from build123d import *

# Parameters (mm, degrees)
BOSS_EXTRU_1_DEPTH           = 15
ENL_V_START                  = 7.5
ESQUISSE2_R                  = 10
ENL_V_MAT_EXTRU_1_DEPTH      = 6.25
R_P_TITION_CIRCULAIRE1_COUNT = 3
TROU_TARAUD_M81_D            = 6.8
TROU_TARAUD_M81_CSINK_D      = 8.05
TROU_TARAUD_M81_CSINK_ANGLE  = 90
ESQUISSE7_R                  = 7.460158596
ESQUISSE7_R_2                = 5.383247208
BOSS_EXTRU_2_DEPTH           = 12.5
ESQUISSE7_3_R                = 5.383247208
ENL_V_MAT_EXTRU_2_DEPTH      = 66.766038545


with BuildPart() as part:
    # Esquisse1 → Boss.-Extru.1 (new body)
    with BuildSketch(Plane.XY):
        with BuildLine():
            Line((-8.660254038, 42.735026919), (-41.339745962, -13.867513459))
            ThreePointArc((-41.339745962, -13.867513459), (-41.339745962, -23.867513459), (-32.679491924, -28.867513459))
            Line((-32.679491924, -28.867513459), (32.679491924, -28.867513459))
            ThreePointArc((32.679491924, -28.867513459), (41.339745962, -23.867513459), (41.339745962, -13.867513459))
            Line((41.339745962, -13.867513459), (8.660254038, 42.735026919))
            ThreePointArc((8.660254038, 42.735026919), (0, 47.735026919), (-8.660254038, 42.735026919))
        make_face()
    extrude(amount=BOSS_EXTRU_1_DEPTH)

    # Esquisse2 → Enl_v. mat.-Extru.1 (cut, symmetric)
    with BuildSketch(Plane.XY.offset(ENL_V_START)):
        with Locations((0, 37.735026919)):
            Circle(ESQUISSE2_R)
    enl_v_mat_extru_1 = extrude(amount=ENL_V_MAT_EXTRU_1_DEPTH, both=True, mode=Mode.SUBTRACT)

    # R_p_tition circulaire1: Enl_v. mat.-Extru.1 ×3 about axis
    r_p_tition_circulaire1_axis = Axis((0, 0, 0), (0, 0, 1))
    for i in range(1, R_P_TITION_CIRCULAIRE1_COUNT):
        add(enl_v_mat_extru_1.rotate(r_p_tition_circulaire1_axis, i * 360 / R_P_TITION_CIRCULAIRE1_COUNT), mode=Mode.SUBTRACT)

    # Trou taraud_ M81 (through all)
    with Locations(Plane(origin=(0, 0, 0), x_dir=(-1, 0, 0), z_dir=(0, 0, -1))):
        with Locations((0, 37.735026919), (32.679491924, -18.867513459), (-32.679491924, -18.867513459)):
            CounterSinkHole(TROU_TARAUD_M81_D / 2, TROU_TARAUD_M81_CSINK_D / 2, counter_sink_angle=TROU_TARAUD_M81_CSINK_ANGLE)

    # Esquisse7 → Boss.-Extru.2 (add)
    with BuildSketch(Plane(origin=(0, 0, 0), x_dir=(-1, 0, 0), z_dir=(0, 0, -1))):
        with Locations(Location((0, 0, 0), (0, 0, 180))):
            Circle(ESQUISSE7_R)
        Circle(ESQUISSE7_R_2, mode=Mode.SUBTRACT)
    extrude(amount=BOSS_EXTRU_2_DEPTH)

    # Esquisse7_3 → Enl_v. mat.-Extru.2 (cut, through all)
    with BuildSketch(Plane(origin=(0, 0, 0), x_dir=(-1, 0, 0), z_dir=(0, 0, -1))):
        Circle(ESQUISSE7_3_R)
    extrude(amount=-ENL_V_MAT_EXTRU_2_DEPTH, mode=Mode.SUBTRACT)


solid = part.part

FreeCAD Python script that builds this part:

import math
import FreeCAD as App
import Part
import Sketcher
from FreeCAD import Vector
Q = App.Units.Quantity

doc = App.newDocument("Part")
body = doc.addObject("PartDesign::Body", "Body")

# Sketch on XY plane
sketch1 = doc.addObject("Sketcher::SketchObject", "Sketch")
body.addObject(sketch1)
sketch1.AttachmentSupport = (doc.XY_Plane, [""])
sketch1.MapMode = "FlatFace"
sketch1.addGeometry([
    Part.LineSegment(Vector(-9, 43, 0), Vector(-41, -14, 0)),  # 0
    Part.ArcOfCircle(Part.Circle(Vector(-33, -19, 0), Vector(0, 0, 1), 10), math.radians(150), math.radians(270)),  # 1
    Part.LineSegment(Vector(-33, -29, 0), Vector(33, -29, 0)),  # 2
    Part.ArcOfCircle(Part.Circle(Vector(33, -19, 0), Vector(0, 0, 1), 10), math.radians(-90), math.radians(30)),  # 3
    Part.LineSegment(Vector(41, -14, 0), Vector(9, 43, 0)),  # 4
    Part.ArcOfCircle(Part.Circle(Vector(0, 38, 0), Vector(0, 0, 1), 10), math.radians(30), math.radians(150)),  # 5
], False)
sketch1.addConstraint([
    Sketcher.Constraint("Tangent", 0, 2, 1, 1),
    Sketcher.Constraint("Tangent", 1, 2, 2, 1),
    Sketcher.Constraint("Tangent", 2, 2, 3, 1),
    Sketcher.Constraint("Tangent", 3, 2, 4, 1),
    Sketcher.Constraint("Tangent", 4, 2, 5, 1),
    Sketcher.Constraint("Tangent", 5, 2, 0, 1),
    Sketcher.Constraint("Horizontal", 2),
    Sketcher.Constraint("Equal", 1, 3),
    Sketcher.Constraint("Equal", 3, 5),
    Sketcher.Constraint("Symmetric", 0, 2, 3, 2, -2),
    Sketcher.Constraint("Radius", 1, Q("10 mm")),
    Sketcher.Constraint("Angle", 0, Q("-120 deg")),
    Sketcher.Constraint("DistanceX", 2, 1, 2, 2, Q("65.358984 mm")),
    Sketcher.Constraint("DistanceY", 1, 3, -1, 1, Q("18.867513 mm")),
])
pad1 = doc.addObject("PartDesign::Pad", "Pad")
body.addObject(pad1)
pad1.Profile = sketch1
pad1.Length = 15

# Sketch on XY plane
sketch2 = doc.addObject("Sketcher::SketchObject", "Sketch001")
body.addObject(sketch2)
sketch2.AttachmentSupport = (doc.XY_Plane, [""])
sketch2.MapMode = "FlatFace"
sketch2.AttachmentOffset = App.Placement(Vector(0, 0, 7.5), App.Rotation())
sketch2.addGeometry(Part.Circle(Vector(0, 38, 0), Vector(0, 0, 1), 10), False)
sketch2.addConstraint([
    Sketcher.Constraint("PointOnObject", 0, 3, -2),
    Sketcher.Constraint("Diameter", 0, Q("20 mm")),
    Sketcher.Constraint("DistanceY", -1, 1, 0, 3, Q("37.735027 mm")),
])
pocket1 = doc.addObject("PartDesign::Pocket", "Pocket")
body.addObject(pocket1)
pocket1.Profile = sketch2
pocket1.Length = 12.5
pocket1.Midplane = True
doc.recompute()

polarpattern = doc.addObject("PartDesign::PolarPattern", "PolarPattern")
body.addObject(polarpattern)
polarpattern.Originals = [pocket1]
polarpattern.Axis = (doc.Z_Axis, [""])
polarpattern.Angle = 360
polarpattern.Occurrences = 3
body.Tip = polarpattern

# Sketch on XY plane
sketch3 = doc.addObject("Sketcher::SketchObject", "Sketch002")
body.addObject(sketch3)
sketch3.AttachmentSupport = (doc.XY_Plane, [""])
sketch3.MapMode = "FlatFace"
sketch3.addGeometry([
    Part.Circle(Vector(0, 37.7, 0), Vector(0, 0, 1), 3.4),
    Part.Circle(Vector(-32.7, -18.9, 0), Vector(0, 0, 1), 3.4),
    Part.Circle(Vector(32.7, -18.9, 0), Vector(0, 0, 1), 3.4),
], False)
sketch3.addConstraint([
    Sketcher.Constraint("Equal", 0, 1),
    Sketcher.Constraint("Equal", 1, 2),
    Sketcher.Constraint("Symmetric", 1, 3, 2, 3, -2),
    Sketcher.Constraint("PointOnObject", 0, 3, -2),
    Sketcher.Constraint("Diameter", 0, Q("6.8 mm")),
    Sketcher.Constraint("DistanceX", 1, 3, -1, 1, Q("32.679492 mm")),
    Sketcher.Constraint("DistanceY", 1, 3, 0, 3, Q("56.60254 mm")),
    Sketcher.Constraint("DistanceY", -1, 1, 0, 3, Q("37.735027 mm")),
])
doc.recompute()
hole = doc.addObject("PartDesign::Hole", "Hole")
body.addObject(hole)
hole.Profile = sketch3
hole.ThreadType = "None"
hole.Diameter = 6.8
hole.DepthType = "ThroughAll"
hole.HoleCutType = "Countersink"
hole.HoleCutDiameter = 8.05
hole.HoleCutCountersinkAngle = 90
hole.Reversed = True

# Sketch on XY plane
sketch4 = doc.addObject("Sketcher::SketchObject", "Sketch003")
body.addObject(sketch4)
sketch4.AttachmentSupport = (doc.XY_Plane, [""])
sketch4.MapMode = "FlatFace"
sketch4.addGeometry([
    Part.Circle(Vector(0, 0, 0), Vector(0, 0, 1), 7),
    Part.Circle(Vector(0, 0, 0), Vector(0, 0, 1), 5),
], False)
sketch4.addConstraint([
    Sketcher.Constraint("Coincident", 0, 3, -1, 1),
    Sketcher.Constraint("Coincident", 1, 3, -1, 1),
    Sketcher.Constraint("Diameter", 0, Q("14.920317 mm")),
    Sketcher.Constraint("Diameter", 1, Q("10.766494 mm")),
])
pad2 = doc.addObject("PartDesign::Pad", "Pad001")
body.addObject(pad2)
pad2.Profile = sketch4
pad2.Length = 12.5
pad2.Reversed = True

# Sketch on XY plane
sketch5 = doc.addObject("Sketcher::SketchObject", "Sketch004")
body.addObject(sketch5)
sketch5.AttachmentSupport = (doc.XY_Plane, [""])
sketch5.MapMode = "FlatFace"
sketch5.addGeometry(Part.Circle(Vector(0, 0, 0), Vector(0, 0, 1), 5), False)
sketch5.addConstraint([
    Sketcher.Constraint("Coincident", 0, 3, -1, 1),
    Sketcher.Constraint("Diameter", 0, Q("10.766494 mm")),
])
pocket2 = doc.addObject("PartDesign::Pocket", "Pocket001")
body.addObject(pocket2)
pocket2.Profile = sketch5
pocket2.Type = "ThroughAll"
pocket2.Reversed = True

doc.recompute()
